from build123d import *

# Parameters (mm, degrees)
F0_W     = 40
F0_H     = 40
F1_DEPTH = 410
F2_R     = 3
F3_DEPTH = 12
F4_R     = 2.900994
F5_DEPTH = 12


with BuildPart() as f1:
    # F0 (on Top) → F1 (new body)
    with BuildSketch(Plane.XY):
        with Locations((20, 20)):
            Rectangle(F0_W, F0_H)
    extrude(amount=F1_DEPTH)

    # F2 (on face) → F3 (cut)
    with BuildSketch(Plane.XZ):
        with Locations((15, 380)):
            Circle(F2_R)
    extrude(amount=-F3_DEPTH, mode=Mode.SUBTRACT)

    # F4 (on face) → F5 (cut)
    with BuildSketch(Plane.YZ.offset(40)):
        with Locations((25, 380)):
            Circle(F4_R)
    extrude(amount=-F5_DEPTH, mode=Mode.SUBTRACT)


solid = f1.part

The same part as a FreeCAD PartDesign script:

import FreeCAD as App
import Part
import Sketcher
from FreeCAD import Vector


def add_polygon(sketch, points):
    """Adds a closed chain of lines whose ends are joined by coincident constraints."""
    first, n = sketch.GeometryCount, len(points)
    for a, b in zip(points, points[1:] + points[:1]):
        sketch.addGeometry(Part.LineSegment(App.Vector(*a, 0), App.Vector(*b, 0)), False)
    for i in range(n):
        sketch.addConstraint(Sketcher.Constraint("Coincident", first + i, 2, first + (i + 1) % n, 1))

doc = App.newDocument("Part")
params = doc.addObject("Spreadsheet::Sheet", "Params")
for row, (alias, value) in enumerate([
    ("sketch1_width", "40 mm"),
    ("pad1_length", "410 mm"),
    ("sketch2_diameter", "6 mm"),
    ("pocket1_length", "12 mm"),
    ("pocket2_length", "12 mm"),
], start=1):
    params.set(f"A{row}", alias)
    params.set(f"B{row}", "=" + value)
    params.setAlias(f"B{row}", alias)

body = doc.addObject("PartDesign::Body", "Body")

# Sketch on XY plane
sketch1 = body.newObject("Sketcher::SketchObject", "Sketch")
sketch1.AttachmentSupport = (doc.getObject("XY_Plane"), [""])
sketch1.MapMode = "FlatFace"
add_polygon(sketch1, [(0, 40), (0, 0), (40, 0), (40, 40)])  # lines 0-3
sketch1.addConstraint([
    Sketcher.Constraint("Vertical", 0),
    Sketcher.Constraint("Horizontal", 1),
    Sketcher.Constraint("Vertical", 2),
    Sketcher.Constraint("Horizontal", 3),
    Sketcher.Constraint("Coincident", 0, 2, -1, 1),
    Sketcher.Constraint("Equal", 3, 0),
    Sketcher.Constraint("DistanceX", 1, 1, 1, 2, 40.0),
])
sketch1.setExpression("Constraints[10]", "Params.sketch1_width")
pad1 = body.newObject("PartDesign::Pad", "Pad")
pad1.Profile = sketch1
pad1.setExpression("Length", "Params.pad1_length")

# Sketch on XZ plane
sketch2 = body.newObject("Sketcher::SketchObject", "Sketch001")
sketch2.AttachmentSupport = (doc.getObject("XZ_Plane"), [""])
sketch2.MapMode = "FlatFace"
sketch2.addGeometry(Part.Circle(Vector(15, 380, 0), Vector(0, 0, 1), 3), False)
sketch2.addConstraint([
    Sketcher.Constraint("Diameter", 0, 6.0),
    Sketcher.Constraint("DistanceX", -1, 1, 0, 3, 15.0),
    Sketcher.Constraint("DistanceY", -1, 1, 0, 3, 380.0),
])
sketch2.setExpression("Constraints[0]", "Params.sketch2_diameter")
pocket1 = body.newObject("PartDesign::Pocket", "Pocket")
pocket1.Profile = sketch2
pocket1.setExpression("Length", "Params.pocket1_length")

# Sketch on YZ plane
sketch3 = body.newObject("Sketcher::SketchObject", "Sketch002")
sketch3.AttachmentSupport = (doc.getObject("YZ_Plane"), [""])
sketch3.MapMode = "FlatFace"
sketch3.AttachmentOffset = App.Placement(Vector(0, 0, 40), App.Rotation())
sketch3.addGeometry(Part.Circle(Vector(25, 380, 0), Vector(0, 0, 1), 2.9), False)
sketch3.addConstraint([
    Sketcher.Constraint("DistanceX", -1, 1, 0, 3, 25.0),
    Sketcher.Constraint("DistanceY", -1, 1, 0, 3, 380.0),
    Sketcher.Constraint("Diameter", 0, 5.801988),
])
pocket2 = body.newObject("PartDesign::Pocket", "Pocket001")
pocket2.Profile = sketch3
pocket2.setExpression("Length", "Params.pocket2_length")

doc.recompute()
